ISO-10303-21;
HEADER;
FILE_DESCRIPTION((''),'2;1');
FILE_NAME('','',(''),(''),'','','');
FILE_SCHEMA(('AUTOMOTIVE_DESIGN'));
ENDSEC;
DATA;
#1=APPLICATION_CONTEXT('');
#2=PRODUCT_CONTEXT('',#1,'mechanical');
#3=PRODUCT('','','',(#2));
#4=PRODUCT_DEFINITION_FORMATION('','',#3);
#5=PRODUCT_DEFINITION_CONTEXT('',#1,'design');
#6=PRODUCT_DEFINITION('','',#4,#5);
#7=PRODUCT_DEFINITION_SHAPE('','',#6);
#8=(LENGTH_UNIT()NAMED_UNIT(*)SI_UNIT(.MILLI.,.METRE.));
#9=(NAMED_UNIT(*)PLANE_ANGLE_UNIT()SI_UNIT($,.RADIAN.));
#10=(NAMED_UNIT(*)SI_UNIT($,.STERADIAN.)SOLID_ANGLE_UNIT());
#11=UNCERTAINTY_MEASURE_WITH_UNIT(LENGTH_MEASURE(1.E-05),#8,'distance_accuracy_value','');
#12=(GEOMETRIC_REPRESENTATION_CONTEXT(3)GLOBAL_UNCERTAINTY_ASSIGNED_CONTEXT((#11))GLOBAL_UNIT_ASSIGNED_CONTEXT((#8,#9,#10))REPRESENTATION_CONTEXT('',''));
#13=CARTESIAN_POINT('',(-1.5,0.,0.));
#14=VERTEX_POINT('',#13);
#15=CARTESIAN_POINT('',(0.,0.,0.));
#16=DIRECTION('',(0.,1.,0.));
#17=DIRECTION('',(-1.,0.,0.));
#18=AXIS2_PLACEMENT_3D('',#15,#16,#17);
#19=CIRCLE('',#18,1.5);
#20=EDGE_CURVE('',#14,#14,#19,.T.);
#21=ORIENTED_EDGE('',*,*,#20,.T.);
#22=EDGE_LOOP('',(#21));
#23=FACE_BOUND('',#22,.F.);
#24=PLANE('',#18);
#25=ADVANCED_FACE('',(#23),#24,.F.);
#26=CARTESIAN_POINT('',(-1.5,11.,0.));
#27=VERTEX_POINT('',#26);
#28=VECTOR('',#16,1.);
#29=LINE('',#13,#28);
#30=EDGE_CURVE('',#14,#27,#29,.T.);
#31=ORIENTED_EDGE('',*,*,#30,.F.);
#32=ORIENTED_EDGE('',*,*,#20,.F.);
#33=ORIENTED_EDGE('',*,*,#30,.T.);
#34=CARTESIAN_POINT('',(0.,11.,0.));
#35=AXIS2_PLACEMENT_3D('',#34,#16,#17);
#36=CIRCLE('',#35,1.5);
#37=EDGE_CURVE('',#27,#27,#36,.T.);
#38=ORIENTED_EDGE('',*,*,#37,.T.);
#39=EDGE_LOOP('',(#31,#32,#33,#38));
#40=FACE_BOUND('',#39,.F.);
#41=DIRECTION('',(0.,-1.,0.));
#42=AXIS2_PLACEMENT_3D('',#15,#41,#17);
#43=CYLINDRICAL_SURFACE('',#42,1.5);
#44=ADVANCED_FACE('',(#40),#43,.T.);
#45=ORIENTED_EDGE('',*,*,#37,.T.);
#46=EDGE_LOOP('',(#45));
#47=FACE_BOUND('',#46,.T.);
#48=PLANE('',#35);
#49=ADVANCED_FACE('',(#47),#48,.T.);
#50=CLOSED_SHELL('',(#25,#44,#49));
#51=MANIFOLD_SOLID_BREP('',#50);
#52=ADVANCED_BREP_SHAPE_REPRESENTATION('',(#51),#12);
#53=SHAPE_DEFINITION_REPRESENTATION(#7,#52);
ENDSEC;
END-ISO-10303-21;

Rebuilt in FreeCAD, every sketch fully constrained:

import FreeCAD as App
import Part
import Sketcher

V = App.Vector

doc = App.newDocument("Part")
params = doc.addObject("Spreadsheet::Sheet", "Params")
for row, (alias, value) in enumerate([
    ("sketch1_diameter", "3 mm"),
    ("pad1_length", "11 mm"),
], start=1):
    params.set(f"A{row}", alias)
    params.set(f"B{row}", "=" + value)
    params.setAlias(f"B{row}", alias)

body = doc.addObject("PartDesign::Body", "Body")

# Sketch on XZ plane
sketch1 = doc.addObject("Sketcher::SketchObject", "Sketch")
body.addObject(sketch1)
sketch1.AttachmentSupport = (doc.XZ_Plane, [""])
sketch1.MapMode = "FlatFace"
sketch1.addGeometry(Part.Circle(V(0, 0, 0), V(0, 0, 1), 1.5), False)
sketch1.addConstraint(Sketcher.Constraint("Coincident", 0, 3, -1, 1))
sketch1.addConstraint(Sketcher.Constraint("Diameter", 0, 3.0))
sketch1.setExpression("Constraints[1]", "Params.sketch1_diameter")
pad1 = doc.addObject("PartDesign::Pad", "Pad")
body.addObject(pad1)
pad1.Profile = sketch1
pad1.setExpression("Length", "Params.pad1_length")
pad1.Reversed = True

doc.recompute()
